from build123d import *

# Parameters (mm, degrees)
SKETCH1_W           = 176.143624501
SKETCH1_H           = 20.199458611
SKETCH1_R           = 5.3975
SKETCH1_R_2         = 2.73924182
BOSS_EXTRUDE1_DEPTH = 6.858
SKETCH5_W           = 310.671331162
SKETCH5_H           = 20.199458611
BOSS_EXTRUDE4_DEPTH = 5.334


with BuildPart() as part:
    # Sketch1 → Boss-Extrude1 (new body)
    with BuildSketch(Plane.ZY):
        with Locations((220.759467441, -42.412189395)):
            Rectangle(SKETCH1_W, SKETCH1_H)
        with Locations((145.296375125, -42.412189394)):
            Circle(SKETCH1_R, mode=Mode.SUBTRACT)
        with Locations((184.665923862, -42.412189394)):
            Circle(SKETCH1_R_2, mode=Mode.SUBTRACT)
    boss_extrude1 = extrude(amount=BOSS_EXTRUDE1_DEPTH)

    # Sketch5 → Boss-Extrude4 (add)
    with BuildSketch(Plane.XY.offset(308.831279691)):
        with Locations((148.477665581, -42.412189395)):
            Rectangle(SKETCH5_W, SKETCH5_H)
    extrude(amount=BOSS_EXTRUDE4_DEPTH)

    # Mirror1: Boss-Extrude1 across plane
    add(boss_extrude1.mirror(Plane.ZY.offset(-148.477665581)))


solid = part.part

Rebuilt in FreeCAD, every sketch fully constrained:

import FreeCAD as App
import Part
import Sketcher
Q = App.Units.Quantity


def add_polygon(sketch, points):
    """Adds a closed chain of lines whose ends are joined by coincident constraints."""
    first, n = sketch.GeometryCount, len(points)
    for a, b in zip(points, points[1:] + points[:1]):
        sketch.addGeometry(Part.LineSegment(App.Vector(*a, 0), App.Vector(*b, 0)), False)
    for i in range(n):
        sketch.addConstraint(Sketcher.Constraint("Coincident", first + i, 2, first + (i + 1) % n, 1))

doc = App.newDocument("Part")
body = doc.addObject("PartDesign::Body", "Body")

sketch1 = doc.addObject("Sketcher::SketchObject", "Sketch")
body.addObject(sketch1)
sketch1.AttachmentSupport = (doc.YZ_Plane, [""])
sketch1.MapMode = "FlatFace"
add_polygon(sketch1, [(-32.3, 132.7), (-52.5, 132.7), (-52.5, 308.8), (-32.3, 308.8)])
sketch1.addGeometry(Part.Circle(App.Vector(-42.4, 145.3, 0), App.Vector(0, 0, 1), 5.4), False)
sketch1.addGeometry(Part.Circle(App.Vector(-42.4, 184.7, 0), App.Vector(0, 0, 1), 2.7), False)
sketch1.addConstraint(Sketcher.Constraint("Horizontal", 0))
sketch1.addConstraint(Sketcher.Constraint("Vertical", 1))
sketch1.addConstraint(Sketcher.Constraint("Horizontal", 2))
sketch1.addConstraint(Sketcher.Constraint("Vertical", 3))
sketch1.addConstraint(Sketcher.Constraint("Vertical", 4, 3, 5, 3))
sketch1.addConstraint(Sketcher.Constraint("Diameter", 4, Q("0.425 in")))
sketch1.addConstraint(Sketcher.Constraint("Diameter", 5, Q("5.478484 mm")))
sketch1.addConstraint(Sketcher.Constraint("DistanceY", 5, 3, 1, 2, Q("4.8883998 in")))
sketch1.addConstraint(Sketcher.Constraint("DistanceX", 0, 2, 0, 1, Q("20.199459 mm")))
sketch1.addConstraint(Sketcher.Constraint("DistanceY", 1, 1, 1, 2, Q("176.143625 mm")))
sketch1.addConstraint(Sketcher.Constraint("DistanceX", 4, 3, -1, 1, Q("42.412189 mm")))
sketch1.addConstraint(Sketcher.Constraint("DistanceX", 0, 2, -1, 1, Q("52.511919 mm")))
sketch1.addConstraint(Sketcher.Constraint("DistanceY", -1, 1, 1, 2, Q("308.83128 mm")))
sketch1.addConstraint(Sketcher.Constraint("DistanceY", 4, 3, 5, 3, Q("39.369549 mm")))
pad1 = doc.addObject("PartDesign::Pad", "Pad")
body.addObject(pad1)
pad1.Profile = sketch1
pad1.Length = Q("0.27 in")
pad1.Reversed = True

sketch2 = doc.addObject("Sketcher::SketchObject", "Sketch001")
body.addObject(sketch2)
sketch2.AttachmentSupport = (doc.XY_Plane, [""])
sketch2.MapMode = "FlatFace"
sketch2.AttachmentOffset = App.Placement(App.Vector(0, 0, 308.83128), App.Rotation())
add_polygon(sketch2, [(-7, -32), (-7, -53), (304, -53), (304, -32)])
sketch2.addConstraint(Sketcher.Constraint("Vertical", 0))
sketch2.addConstraint(Sketcher.Constraint("Horizontal", 1))
sketch2.addConstraint(Sketcher.Constraint("Vertical", 2))
sketch2.addConstraint(Sketcher.Constraint("Horizontal", 3))
sketch2.addConstraint(Sketcher.Constraint("DistanceX", 0, 2, -1, 1, Q("0.27 in")))
sketch2.addConstraint(Sketcher.Constraint("DistanceX", 1, 1, 1, 2, Q("310.671331 mm")))
sketch2.addConstraint(Sketcher.Constraint("DistanceY", 0, 2, 0, 1, Q("20.199459 mm")))
sketch2.addConstraint(Sketcher.Constraint("DistanceY", 0, 2, -1, 1, Q("52.511919 mm")))
pad2 = doc.addObject("PartDesign::Pad", "Pad001")
body.addObject(pad2)
pad2.Profile = sketch2
pad2.Length = Q("0.21 in")
doc.recompute()

datumplane = doc.addObject("PartDesign::Plane", "DatumPlane")
body.addObject(datumplane)
datumplane.AttachmentSupport = (doc.YZ_Plane, [""])
datumplane.MapMode = "FlatFace"
datumplane.AttachmentOffset = App.Placement(App.Vector(0, 0, 148.477666), App.Rotation())
mirrored = doc.addObject("PartDesign::Mirrored", "Mirrored")
body.addObject(mirrored)
mirrored.Originals = [pad1]
mirrored.MirrorPlane = (datumplane, [""])
body.Tip = mirrored

doc.recompute()
